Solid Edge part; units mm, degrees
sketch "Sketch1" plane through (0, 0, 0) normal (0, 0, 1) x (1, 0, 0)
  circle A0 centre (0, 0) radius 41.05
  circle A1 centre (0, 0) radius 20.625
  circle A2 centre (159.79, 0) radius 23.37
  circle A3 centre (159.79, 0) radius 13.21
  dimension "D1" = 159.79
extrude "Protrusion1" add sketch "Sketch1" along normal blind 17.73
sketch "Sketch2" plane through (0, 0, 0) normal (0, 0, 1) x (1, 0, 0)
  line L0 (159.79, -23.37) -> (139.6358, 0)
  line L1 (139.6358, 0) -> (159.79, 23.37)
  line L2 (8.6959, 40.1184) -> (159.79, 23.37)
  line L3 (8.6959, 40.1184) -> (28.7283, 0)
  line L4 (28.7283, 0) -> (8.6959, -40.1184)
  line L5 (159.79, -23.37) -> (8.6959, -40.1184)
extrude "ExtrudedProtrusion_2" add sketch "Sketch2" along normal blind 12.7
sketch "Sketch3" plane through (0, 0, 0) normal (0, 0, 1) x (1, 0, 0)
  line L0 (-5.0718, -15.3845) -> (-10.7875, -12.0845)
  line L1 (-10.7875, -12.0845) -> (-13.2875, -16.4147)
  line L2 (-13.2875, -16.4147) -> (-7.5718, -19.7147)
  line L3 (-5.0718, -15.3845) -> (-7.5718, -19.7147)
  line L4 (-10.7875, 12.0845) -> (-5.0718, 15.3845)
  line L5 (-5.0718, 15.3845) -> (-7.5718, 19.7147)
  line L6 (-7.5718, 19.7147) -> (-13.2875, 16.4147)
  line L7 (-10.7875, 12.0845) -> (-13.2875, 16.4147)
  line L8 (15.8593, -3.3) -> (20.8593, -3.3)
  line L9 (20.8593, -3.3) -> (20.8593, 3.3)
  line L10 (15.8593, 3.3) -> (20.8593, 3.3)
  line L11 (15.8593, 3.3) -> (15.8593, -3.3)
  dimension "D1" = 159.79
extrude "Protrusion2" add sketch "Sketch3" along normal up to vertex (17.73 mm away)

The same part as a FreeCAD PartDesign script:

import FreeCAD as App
import Part
import Sketcher
from FreeCAD import Vector
Q = App.Units.Quantity

doc = App.newDocument("Part")
body = doc.addObject("PartDesign::Body", "Body")
body.AllowCompound = True

sketch1 = body.newObject("Sketcher::SketchObject", "Sketch")
sketch1.AttachmentSupport = (doc.getObject("XY_Plane"), [""])
sketch1.MapMode = "FlatFace"
sketch1.addGeometry([
    Part.Circle(Vector(0, 0, 0), Vector(0, 0, 1), 41),
    Part.Circle(Vector(0, 0, 0), Vector(0, 0, 1), 21),
    Part.Circle(Vector(160, 0, 0), Vector(0, 0, 1), 23),
    Part.Circle(Vector(160, 0, 0), Vector(0, 0, 1), 13),
], False)
sketch1.addConstraint([
    Sketcher.Constraint("Coincident", 0, 3, -1, 1),
    Sketcher.Constraint("Coincident", 1, 3, -1, 1),
    Sketcher.Constraint("Coincident", 3, 3, 2, 3),
    Sketcher.Constraint("PointOnObject", 2, 3, -1),
    Sketcher.Constraint("Diameter", 0, Q("82.1 mm")),
    Sketcher.Constraint("Diameter", 1, Q("41.25 mm")),
    Sketcher.Constraint("Diameter", 2, Q("46.74 mm")),
    Sketcher.Constraint("Diameter", 3, Q("26.42 mm")),
    Sketcher.Constraint("DistanceX", -1, 1, 2, 3, Q("159.79 mm")),
])
pad1 = body.newObject("PartDesign::Pad", "Pad")
pad1.Profile = sketch1
pad1.Length = 17.73

sketch2 = body.newObject("Sketcher::SketchObject", "Sketch001")
sketch2.AttachmentSupport = (doc.getObject("XY_Plane"), [""])
sketch2.MapMode = "FlatFace"
sketch2.addGeometry([
    Part.LineSegment(Vector(9, -40, 0), Vector(160, -23, 0)),
    Part.LineSegment(Vector(160, -23, 0), Vector(140, 0, 0)),
    Part.LineSegment(Vector(140, 0, 0), Vector(160, 23, 0)),
    Part.LineSegment(Vector(160, 23, 0), Vector(9, 40, 0)),
    Part.LineSegment(Vector(9, 40, 0), Vector(29, 0, 0)),
    Part.LineSegment(Vector(29, 0, 0), Vector(9, -40, 0)),
], False)
sketch2.addConstraint([
    Sketcher.Constraint("Coincident", 0, 2, 1, 1),
    Sketcher.Constraint("Coincident", 1, 2, 2, 1),
    Sketcher.Constraint("Coincident", 2, 2, 3, 1),
    Sketcher.Constraint("Coincident", 3, 2, 4, 1),
    Sketcher.Constraint("Coincident", 4, 2, 5, 1),
    Sketcher.Constraint("Coincident", 5, 2, 0, 1),
    Sketcher.Constraint("Symmetric", 0, 2, 2, 2, -1),
    Sketcher.Constraint("Symmetric", 3, 2, 5, 2, -1),
    Sketcher.Constraint("PointOnObject", 1, 2, -1),
    Sketcher.Constraint("PointOnObject", 4, 2, -1),
    Sketcher.Constraint("DistanceX", -1, 1, 0, 2, Q("159.79 mm")),
    Sketcher.Constraint("DistanceY", 0, 2, -1, 1, Q("23.37 mm")),
    Sketcher.Constraint("DistanceX", 3, 2, 1, 2, Q("130.94 mm")),
    Sketcher.Constraint("DistanceX", -1, 1, 3, 2, Q("8.696 mm")),
    Sketcher.Constraint("Distance", 0, Q("152.0195 mm")),
    Sketcher.Constraint("Distance", 4, Q("44.8418 mm")),
])
pad2 = body.newObject("PartDesign::Pad", "Pad001")
pad2.Profile = sketch2
pad2.Length = 12.7

sketch3 = body.newObject("Sketcher::SketchObject", "Sketch002")
sketch3.AttachmentSupport = (doc.getObject("XY_Plane"), [""])
sketch3.MapMode = "FlatFace"
sketch3.addGeometry([
    Part.LineSegment(Vector(-8, -20, 0), Vector(-5, -15, 0)),
    Part.LineSegment(Vector(-5, -15, 0), Vector(-11, -12, 0)),
    Part.LineSegment(Vector(-11, -12, 0), Vector(-13, -16, 0)),
    Part.LineSegment(Vector(-13, -16, 0), Vector(-8, -20, 0)),
    Part.LineSegment(Vector(-13, 16, 0), Vector(-11, 12, 0)),
    Part.LineSegment(Vector(-11, 12, 0), Vector(-5, 15, 0)),
    Part.LineSegment(Vector(-5, 15, 0), Vector(-8, 20, 0)),
    Part.LineSegment(Vector(-8, 20, 0), Vector(-13, 16, 0)),
    Part.LineSegment(Vector(16, 3, 0), Vector(16, -3, 0)),
    Part.LineSegment(Vector(16, -3, 0), Vector(21, -3, 0)),
    Part.LineSegment(Vector(21, -3, 0), Vector(21, 3, 0)),
    Part.LineSegment(Vector(21, 3, 0), Vector(16, 3, 0)),
], False)
sketch3.addConstraint([
    Sketcher.Constraint("Coincident", 0, 2, 1, 1),
    Sketcher.Constraint("Coincident", 1, 2, 2, 1),
    Sketcher.Constraint("Coincident", 2, 2, 3, 1),
    Sketcher.Constraint("Coincident", 3, 2, 0, 1),
    Sketcher.Constraint("Coincident", 4, 2, 5, 1),
    Sketcher.Constraint("Coincident", 5, 2, 6, 1),
    Sketcher.Constraint("Coincident", 6, 2, 7, 1),
    Sketcher.Constraint("Coincident", 7, 2, 4, 1),
    Sketcher.Constraint("Coincident", 8, 2, 9, 1),
    Sketcher.Constraint("Coincident", 9, 2, 10, 1),
    Sketcher.Constraint("Coincident", 10, 2, 11, 1),
    Sketcher.Constraint("Coincident", 11, 2, 8, 1),
    Sketcher.Constraint("Vertical", 8),
    Sketcher.Constraint("Horizontal", 9),
    Sketcher.Constraint("Vertical", 10),
    Sketcher.Constraint("Horizontal", 11),
    Sketcher.Constraint("Symmetric", 1, 2, 4, 2, -1),
    Sketcher.Constraint("Symmetric", 0, 2, 5, 2, -1),
    Sketcher.Constraint("Symmetric", 3, 2, 6, 2, -1),
    Sketcher.Constraint("Symmetric", 2, 2, 7, 2, -1),
    Sketcher.Constraint("Perpendicular", 0, 1),
    Sketcher.Constraint("Perpendicular", 1, 2),
    Sketcher.Constraint("Perpendicular", 2, 3),
    Sketcher.Constraint("DistanceX", 9, 1, 9, 2, Q("5 mm")),
    Sketcher.Constraint("Angle", 0, Q("60.0004 deg")),
    Sketcher.Constraint("Distance", 0, Q("5 mm")),
    Sketcher.Constraint("DistanceY", 8, 2, 8, 1, Q("6.6 mm")),
    Sketcher.Constraint("Distance", 1, Q("6.6 mm")),
    Sketcher.Constraint("DistanceY", 8, 2, -1, 1, Q("3.3 mm")),
    Sketcher.Constraint("DistanceY", 1, 2, 4, 2, Q("24.169 mm")),
    Sketcher.Constraint("DistanceX", 0, 2, 8, 2, Q("20.931 mm")),
    Sketcher.Constraint("DistanceX", 0, 2, -1, 1, Q("5.0718 mm")),
])
pad3 = body.newObject("PartDesign::Pad", "Pad002")
pad3.Profile = sketch3
pad3.Length = 17.73

doc.recompute()
